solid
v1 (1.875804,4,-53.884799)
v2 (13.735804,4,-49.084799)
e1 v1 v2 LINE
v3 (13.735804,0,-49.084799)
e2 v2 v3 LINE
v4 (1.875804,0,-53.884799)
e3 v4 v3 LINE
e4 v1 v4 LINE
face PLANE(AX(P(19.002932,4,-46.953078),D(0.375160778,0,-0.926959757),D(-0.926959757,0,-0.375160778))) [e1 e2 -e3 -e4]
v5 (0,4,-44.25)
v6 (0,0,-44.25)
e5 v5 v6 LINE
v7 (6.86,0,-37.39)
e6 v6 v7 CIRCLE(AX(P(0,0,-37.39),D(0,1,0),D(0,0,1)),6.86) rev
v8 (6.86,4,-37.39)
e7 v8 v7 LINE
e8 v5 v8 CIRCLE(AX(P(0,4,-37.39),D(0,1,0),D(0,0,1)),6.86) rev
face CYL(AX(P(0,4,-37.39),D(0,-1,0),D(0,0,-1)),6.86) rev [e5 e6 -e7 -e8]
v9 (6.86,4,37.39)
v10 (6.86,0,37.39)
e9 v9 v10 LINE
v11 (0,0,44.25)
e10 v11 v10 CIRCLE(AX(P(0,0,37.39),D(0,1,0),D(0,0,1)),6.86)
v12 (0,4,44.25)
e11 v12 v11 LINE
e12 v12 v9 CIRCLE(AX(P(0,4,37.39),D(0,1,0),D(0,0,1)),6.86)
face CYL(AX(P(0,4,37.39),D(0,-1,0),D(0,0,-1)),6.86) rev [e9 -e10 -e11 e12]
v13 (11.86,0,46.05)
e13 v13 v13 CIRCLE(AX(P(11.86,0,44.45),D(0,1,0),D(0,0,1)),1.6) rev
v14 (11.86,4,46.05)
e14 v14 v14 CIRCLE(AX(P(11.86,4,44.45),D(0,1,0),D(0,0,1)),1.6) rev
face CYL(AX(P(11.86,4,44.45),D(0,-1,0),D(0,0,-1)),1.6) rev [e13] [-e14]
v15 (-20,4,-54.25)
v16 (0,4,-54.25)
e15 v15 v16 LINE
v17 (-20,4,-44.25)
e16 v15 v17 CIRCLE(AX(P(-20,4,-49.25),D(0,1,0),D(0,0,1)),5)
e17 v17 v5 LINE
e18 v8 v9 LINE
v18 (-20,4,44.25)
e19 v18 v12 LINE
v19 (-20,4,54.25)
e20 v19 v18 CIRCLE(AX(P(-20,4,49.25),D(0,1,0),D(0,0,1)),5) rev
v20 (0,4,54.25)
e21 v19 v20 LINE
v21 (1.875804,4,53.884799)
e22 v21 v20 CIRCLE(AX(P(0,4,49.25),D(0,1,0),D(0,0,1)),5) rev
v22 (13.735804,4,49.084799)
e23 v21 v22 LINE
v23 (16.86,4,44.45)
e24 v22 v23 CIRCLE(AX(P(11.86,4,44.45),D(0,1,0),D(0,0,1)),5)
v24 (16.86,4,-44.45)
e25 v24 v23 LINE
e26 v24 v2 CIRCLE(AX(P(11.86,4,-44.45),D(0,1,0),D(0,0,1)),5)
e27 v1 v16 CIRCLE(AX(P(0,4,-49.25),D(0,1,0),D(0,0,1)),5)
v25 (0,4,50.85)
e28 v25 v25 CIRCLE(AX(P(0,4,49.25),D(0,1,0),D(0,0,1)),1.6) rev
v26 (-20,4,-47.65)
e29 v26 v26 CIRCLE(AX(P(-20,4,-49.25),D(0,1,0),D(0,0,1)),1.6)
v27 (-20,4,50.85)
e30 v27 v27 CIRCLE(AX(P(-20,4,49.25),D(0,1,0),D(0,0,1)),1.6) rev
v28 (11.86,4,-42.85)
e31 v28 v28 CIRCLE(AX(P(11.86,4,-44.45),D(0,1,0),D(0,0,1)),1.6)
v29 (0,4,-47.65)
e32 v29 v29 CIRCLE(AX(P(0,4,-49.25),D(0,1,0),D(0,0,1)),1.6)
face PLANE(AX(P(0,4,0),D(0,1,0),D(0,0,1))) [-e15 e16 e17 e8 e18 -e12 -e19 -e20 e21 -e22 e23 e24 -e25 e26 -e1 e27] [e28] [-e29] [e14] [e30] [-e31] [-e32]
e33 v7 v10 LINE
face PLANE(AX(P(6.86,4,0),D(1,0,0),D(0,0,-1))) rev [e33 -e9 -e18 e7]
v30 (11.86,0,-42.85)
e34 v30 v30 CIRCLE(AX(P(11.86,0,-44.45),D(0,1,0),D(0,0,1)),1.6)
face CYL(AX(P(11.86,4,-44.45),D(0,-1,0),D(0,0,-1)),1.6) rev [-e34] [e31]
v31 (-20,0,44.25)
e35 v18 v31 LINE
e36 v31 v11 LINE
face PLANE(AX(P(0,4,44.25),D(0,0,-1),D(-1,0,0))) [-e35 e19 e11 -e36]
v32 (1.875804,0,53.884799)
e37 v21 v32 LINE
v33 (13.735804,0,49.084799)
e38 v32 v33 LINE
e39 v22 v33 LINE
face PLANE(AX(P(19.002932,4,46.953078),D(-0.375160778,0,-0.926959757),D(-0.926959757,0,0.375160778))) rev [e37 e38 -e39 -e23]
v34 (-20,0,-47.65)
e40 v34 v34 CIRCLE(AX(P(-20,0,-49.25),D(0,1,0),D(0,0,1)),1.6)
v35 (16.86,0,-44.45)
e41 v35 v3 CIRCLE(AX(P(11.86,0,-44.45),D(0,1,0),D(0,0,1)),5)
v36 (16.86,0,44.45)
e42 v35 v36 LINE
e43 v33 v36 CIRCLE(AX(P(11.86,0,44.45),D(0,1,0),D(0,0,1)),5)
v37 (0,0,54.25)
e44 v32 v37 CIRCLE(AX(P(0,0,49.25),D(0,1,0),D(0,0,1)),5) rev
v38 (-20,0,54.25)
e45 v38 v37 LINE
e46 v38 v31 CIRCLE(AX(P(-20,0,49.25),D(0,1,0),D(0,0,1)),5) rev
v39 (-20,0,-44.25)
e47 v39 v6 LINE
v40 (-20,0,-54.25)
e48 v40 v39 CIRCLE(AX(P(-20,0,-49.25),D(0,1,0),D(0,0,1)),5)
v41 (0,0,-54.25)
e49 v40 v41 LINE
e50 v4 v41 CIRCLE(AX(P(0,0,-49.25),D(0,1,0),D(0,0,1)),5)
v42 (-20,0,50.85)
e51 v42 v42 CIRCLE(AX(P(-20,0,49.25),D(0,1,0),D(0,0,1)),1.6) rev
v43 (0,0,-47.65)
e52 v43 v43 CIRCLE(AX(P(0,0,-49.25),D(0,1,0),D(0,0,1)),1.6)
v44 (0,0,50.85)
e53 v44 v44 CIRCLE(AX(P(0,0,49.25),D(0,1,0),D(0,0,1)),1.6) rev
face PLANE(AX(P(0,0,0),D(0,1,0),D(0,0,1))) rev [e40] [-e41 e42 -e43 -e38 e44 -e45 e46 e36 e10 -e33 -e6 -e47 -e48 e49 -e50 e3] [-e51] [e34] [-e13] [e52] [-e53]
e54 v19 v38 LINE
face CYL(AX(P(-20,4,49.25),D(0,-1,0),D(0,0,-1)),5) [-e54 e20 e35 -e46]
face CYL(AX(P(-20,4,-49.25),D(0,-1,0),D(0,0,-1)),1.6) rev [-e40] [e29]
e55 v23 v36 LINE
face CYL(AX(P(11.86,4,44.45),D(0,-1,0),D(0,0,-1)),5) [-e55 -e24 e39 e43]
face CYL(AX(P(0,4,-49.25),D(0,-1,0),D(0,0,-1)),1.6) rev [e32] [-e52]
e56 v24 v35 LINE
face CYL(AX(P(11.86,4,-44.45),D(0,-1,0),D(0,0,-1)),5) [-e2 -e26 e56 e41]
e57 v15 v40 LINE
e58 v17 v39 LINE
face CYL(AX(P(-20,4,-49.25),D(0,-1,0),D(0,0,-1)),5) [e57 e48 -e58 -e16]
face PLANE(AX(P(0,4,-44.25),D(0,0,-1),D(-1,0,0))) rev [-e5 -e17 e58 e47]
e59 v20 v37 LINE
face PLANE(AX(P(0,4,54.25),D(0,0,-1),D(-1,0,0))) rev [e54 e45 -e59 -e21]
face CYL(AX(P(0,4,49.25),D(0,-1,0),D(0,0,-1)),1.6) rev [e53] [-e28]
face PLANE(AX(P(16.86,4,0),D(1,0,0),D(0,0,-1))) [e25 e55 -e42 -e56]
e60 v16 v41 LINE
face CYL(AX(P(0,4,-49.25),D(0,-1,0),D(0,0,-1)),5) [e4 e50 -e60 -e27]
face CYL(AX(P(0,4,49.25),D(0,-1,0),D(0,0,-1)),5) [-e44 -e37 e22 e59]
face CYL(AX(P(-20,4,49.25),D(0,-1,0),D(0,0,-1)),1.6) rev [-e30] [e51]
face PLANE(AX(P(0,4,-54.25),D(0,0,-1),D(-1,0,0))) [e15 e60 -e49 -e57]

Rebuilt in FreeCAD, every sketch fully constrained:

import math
import FreeCAD as App
import Part
import Sketcher
from FreeCAD import Vector
Q = App.Units.Quantity

doc = App.newDocument("Part")
body = doc.addObject("PartDesign::Body", "Body")

sketch1 = doc.addObject("Sketcher::SketchObject", "Sketch")
body.addObject(sketch1)
sketch1.AttachmentSupport = (doc.XZ_Plane, [""])
sketch1.MapMode = "FlatFace"
sketch1.addGeometry([
    Part.LineSegment(Vector(-20, -44.2, 0), Vector(0, -44.2, 0)),
    Part.ArcOfCircle(Part.Circle(Vector(0, -37.4, 0), Vector(0, 0, 1), 6.9), math.radians(-90), math.radians(0)),
    Part.LineSegment(Vector(6.9, -37.4, 0), Vector(6.9, 37.4, 0)),
    Part.ArcOfCircle(Part.Circle(Vector(0, 37.4, 0), Vector(0, 0, 1), 6.9), math.radians(0), math.radians(90)),
    Part.LineSegment(Vector(0, 44.2, 0), Vector(-20, 44.2, 0)),
    Part.ArcOfCircle(Part.Circle(Vector(-20, 49.2, 0), Vector(0, 0, 1), 5), math.radians(90), math.radians(270)),
    Part.LineSegment(Vector(-20, 54.2, 0), Vector(0, 54.2, 0)),
    Part.ArcOfCircle(Part.Circle(Vector(0, 49.2, 0), Vector(0, 0, 1), 5), math.radians(68), math.radians(90)),
    Part.LineSegment(Vector(1.9, 53.9, 0), Vector(13.7, 49.1, 0)),
    Part.ArcOfCircle(Part.Circle(Vector(11.9, 44.5, 0), Vector(0, 0, 1), 5), math.radians(0), math.radians(68)),
    Part.LineSegment(Vector(16.9, 44.5, 0), Vector(16.9, -44.5, 0)),
    Part.ArcOfCircle(Part.Circle(Vector(11.9, -44.5, 0), Vector(0, 0, 1), 5), math.radians(-68), math.radians(0)),
    Part.LineSegment(Vector(13.7, -49.1, 0), Vector(1.9, -53.9, 0)),
    Part.ArcOfCircle(Part.Circle(Vector(0, -49.2, 0), Vector(0, 0, 1), 5), math.radians(-90), math.radians(-68)),
    Part.LineSegment(Vector(0, -54.2, 0), Vector(-20, -54.2, 0)),
    Part.ArcOfCircle(Part.Circle(Vector(-20, -49.2, 0), Vector(0, 0, 1), 5), math.radians(90), math.radians(270)),
    Part.Circle(Vector(-20, -49.2, 0), Vector(0, 0, 1), 1.6),
    Part.Circle(Vector(0, -49.2, 0), Vector(0, 0, 1), 1.6),
    Part.Circle(Vector(11.9, 44.5, 0), Vector(0, 0, 1), 1.6),
    Part.Circle(Vector(11.9, -44.5, 0), Vector(0, 0, 1), 1.6),
    Part.Circle(Vector(-20, 49.2, 0), Vector(0, 0, 1), 1.6),
    Part.Circle(Vector(0, 49.2, 0), Vector(0, 0, 1), 1.6),
], False)
sketch1.addConstraint([
    Sketcher.Constraint("Tangent", 0, 2, 1, 1),
    Sketcher.Constraint("Tangent", 1, 2, 2, 1),
    Sketcher.Constraint("Tangent", 2, 2, 3, 1),
    Sketcher.Constraint("Tangent", 3, 2, 4, 1),
    Sketcher.Constraint("Tangent", 4, 2, 5, 2),
    Sketcher.Constraint("Tangent", 5, 1, 6, 1),
    Sketcher.Constraint("Tangent", 6, 2, 7, 2),
    Sketcher.Constraint("Tangent", 7, 1, 8, 1),
    Sketcher.Constraint("Tangent", 8, 2, 9, 2),
    Sketcher.Constraint("Tangent", 9, 1, 10, 1),
    Sketcher.Constraint("Tangent", 10, 2, 11, 2),
    Sketcher.Constraint("Tangent", 11, 1, 12, 1),
    Sketcher.Constraint("Tangent", 12, 2, 13, 2),
    Sketcher.Constraint("Tangent", 13, 1, 14, 1),
    Sketcher.Constraint("Tangent", 14, 2, 15, 2),
    Sketcher.Constraint("Tangent", 15, 1, 0, 1),
    Sketcher.Constraint("Horizontal", 0),
    Sketcher.Constraint("Vertical", 2),
    Sketcher.Constraint("Horizontal", 4),
    Sketcher.Constraint("Horizontal", 6),
    Sketcher.Constraint("Vertical", 10),
    Sketcher.Constraint("Horizontal", 14),
    Sketcher.Constraint("Coincident", 16, 3, 15, 3),
    Sketcher.Constraint("Coincident", 17, 3, 13, 3),
    Sketcher.Constraint("Coincident", 18, 3, 9, 3),
    Sketcher.Constraint("Coincident", 19, 3, 11, 3),
    Sketcher.Constraint("Coincident", 20, 3, 5, 3),
    Sketcher.Constraint("Coincident", 21, 3, 7, 3),
    Sketcher.Constraint("Equal", 1, 3),
    Sketcher.Constraint("Equal", 5, 7),
    Sketcher.Constraint("Equal", 7, 9),
    Sketcher.Constraint("Equal", 9, 11),
    Sketcher.Constraint("Equal", 11, 13),
    Sketcher.Constraint("Equal", 13, 15),
    Sketcher.Constraint("Equal", 16, 17),
    Sketcher.Constraint("Equal", 17, 18),
    Sketcher.Constraint("Equal", 18, 19),
    Sketcher.Constraint("Equal", 19, 20),
    Sketcher.Constraint("Equal", 20, 21),
    Sketcher.Constraint("Symmetric", 1, 3, 3, 3, -1, 1),
    Sketcher.Constraint("Symmetric", 8, 2, 11, 1, -1),
    Sketcher.Constraint("PointOnObject", 7, 3, -2),
    Sketcher.Constraint("Vertical", 5, 3, 15, 3),
    Sketcher.Constraint("Radius", 5, Q("5 mm")),
    Sketcher.Constraint("Diameter", 16, Q("3.2 mm")),
    Sketcher.Constraint("DistanceX", 0, 1, 0, 2, Q("20 mm")),
    Sketcher.Constraint("Radius", 1, Q("6.86 mm")),
    Sketcher.Constraint("DistanceY", 10, 2, 10, 1, Q("88.9 mm")),
    Sketcher.Constraint("DistanceX", 1, 2, 11, 3, Q("5 mm")),
    Sketcher.Constraint("DistanceY", 2, 1, 2, 2, Q("74.78 mm")),
])
pad1 = doc.addObject("PartDesign::Pad", "Pad")
body.addObject(pad1)
pad1.Profile = sketch1
pad1.Length = 4
pad1.Reversed = True

doc.recompute()
